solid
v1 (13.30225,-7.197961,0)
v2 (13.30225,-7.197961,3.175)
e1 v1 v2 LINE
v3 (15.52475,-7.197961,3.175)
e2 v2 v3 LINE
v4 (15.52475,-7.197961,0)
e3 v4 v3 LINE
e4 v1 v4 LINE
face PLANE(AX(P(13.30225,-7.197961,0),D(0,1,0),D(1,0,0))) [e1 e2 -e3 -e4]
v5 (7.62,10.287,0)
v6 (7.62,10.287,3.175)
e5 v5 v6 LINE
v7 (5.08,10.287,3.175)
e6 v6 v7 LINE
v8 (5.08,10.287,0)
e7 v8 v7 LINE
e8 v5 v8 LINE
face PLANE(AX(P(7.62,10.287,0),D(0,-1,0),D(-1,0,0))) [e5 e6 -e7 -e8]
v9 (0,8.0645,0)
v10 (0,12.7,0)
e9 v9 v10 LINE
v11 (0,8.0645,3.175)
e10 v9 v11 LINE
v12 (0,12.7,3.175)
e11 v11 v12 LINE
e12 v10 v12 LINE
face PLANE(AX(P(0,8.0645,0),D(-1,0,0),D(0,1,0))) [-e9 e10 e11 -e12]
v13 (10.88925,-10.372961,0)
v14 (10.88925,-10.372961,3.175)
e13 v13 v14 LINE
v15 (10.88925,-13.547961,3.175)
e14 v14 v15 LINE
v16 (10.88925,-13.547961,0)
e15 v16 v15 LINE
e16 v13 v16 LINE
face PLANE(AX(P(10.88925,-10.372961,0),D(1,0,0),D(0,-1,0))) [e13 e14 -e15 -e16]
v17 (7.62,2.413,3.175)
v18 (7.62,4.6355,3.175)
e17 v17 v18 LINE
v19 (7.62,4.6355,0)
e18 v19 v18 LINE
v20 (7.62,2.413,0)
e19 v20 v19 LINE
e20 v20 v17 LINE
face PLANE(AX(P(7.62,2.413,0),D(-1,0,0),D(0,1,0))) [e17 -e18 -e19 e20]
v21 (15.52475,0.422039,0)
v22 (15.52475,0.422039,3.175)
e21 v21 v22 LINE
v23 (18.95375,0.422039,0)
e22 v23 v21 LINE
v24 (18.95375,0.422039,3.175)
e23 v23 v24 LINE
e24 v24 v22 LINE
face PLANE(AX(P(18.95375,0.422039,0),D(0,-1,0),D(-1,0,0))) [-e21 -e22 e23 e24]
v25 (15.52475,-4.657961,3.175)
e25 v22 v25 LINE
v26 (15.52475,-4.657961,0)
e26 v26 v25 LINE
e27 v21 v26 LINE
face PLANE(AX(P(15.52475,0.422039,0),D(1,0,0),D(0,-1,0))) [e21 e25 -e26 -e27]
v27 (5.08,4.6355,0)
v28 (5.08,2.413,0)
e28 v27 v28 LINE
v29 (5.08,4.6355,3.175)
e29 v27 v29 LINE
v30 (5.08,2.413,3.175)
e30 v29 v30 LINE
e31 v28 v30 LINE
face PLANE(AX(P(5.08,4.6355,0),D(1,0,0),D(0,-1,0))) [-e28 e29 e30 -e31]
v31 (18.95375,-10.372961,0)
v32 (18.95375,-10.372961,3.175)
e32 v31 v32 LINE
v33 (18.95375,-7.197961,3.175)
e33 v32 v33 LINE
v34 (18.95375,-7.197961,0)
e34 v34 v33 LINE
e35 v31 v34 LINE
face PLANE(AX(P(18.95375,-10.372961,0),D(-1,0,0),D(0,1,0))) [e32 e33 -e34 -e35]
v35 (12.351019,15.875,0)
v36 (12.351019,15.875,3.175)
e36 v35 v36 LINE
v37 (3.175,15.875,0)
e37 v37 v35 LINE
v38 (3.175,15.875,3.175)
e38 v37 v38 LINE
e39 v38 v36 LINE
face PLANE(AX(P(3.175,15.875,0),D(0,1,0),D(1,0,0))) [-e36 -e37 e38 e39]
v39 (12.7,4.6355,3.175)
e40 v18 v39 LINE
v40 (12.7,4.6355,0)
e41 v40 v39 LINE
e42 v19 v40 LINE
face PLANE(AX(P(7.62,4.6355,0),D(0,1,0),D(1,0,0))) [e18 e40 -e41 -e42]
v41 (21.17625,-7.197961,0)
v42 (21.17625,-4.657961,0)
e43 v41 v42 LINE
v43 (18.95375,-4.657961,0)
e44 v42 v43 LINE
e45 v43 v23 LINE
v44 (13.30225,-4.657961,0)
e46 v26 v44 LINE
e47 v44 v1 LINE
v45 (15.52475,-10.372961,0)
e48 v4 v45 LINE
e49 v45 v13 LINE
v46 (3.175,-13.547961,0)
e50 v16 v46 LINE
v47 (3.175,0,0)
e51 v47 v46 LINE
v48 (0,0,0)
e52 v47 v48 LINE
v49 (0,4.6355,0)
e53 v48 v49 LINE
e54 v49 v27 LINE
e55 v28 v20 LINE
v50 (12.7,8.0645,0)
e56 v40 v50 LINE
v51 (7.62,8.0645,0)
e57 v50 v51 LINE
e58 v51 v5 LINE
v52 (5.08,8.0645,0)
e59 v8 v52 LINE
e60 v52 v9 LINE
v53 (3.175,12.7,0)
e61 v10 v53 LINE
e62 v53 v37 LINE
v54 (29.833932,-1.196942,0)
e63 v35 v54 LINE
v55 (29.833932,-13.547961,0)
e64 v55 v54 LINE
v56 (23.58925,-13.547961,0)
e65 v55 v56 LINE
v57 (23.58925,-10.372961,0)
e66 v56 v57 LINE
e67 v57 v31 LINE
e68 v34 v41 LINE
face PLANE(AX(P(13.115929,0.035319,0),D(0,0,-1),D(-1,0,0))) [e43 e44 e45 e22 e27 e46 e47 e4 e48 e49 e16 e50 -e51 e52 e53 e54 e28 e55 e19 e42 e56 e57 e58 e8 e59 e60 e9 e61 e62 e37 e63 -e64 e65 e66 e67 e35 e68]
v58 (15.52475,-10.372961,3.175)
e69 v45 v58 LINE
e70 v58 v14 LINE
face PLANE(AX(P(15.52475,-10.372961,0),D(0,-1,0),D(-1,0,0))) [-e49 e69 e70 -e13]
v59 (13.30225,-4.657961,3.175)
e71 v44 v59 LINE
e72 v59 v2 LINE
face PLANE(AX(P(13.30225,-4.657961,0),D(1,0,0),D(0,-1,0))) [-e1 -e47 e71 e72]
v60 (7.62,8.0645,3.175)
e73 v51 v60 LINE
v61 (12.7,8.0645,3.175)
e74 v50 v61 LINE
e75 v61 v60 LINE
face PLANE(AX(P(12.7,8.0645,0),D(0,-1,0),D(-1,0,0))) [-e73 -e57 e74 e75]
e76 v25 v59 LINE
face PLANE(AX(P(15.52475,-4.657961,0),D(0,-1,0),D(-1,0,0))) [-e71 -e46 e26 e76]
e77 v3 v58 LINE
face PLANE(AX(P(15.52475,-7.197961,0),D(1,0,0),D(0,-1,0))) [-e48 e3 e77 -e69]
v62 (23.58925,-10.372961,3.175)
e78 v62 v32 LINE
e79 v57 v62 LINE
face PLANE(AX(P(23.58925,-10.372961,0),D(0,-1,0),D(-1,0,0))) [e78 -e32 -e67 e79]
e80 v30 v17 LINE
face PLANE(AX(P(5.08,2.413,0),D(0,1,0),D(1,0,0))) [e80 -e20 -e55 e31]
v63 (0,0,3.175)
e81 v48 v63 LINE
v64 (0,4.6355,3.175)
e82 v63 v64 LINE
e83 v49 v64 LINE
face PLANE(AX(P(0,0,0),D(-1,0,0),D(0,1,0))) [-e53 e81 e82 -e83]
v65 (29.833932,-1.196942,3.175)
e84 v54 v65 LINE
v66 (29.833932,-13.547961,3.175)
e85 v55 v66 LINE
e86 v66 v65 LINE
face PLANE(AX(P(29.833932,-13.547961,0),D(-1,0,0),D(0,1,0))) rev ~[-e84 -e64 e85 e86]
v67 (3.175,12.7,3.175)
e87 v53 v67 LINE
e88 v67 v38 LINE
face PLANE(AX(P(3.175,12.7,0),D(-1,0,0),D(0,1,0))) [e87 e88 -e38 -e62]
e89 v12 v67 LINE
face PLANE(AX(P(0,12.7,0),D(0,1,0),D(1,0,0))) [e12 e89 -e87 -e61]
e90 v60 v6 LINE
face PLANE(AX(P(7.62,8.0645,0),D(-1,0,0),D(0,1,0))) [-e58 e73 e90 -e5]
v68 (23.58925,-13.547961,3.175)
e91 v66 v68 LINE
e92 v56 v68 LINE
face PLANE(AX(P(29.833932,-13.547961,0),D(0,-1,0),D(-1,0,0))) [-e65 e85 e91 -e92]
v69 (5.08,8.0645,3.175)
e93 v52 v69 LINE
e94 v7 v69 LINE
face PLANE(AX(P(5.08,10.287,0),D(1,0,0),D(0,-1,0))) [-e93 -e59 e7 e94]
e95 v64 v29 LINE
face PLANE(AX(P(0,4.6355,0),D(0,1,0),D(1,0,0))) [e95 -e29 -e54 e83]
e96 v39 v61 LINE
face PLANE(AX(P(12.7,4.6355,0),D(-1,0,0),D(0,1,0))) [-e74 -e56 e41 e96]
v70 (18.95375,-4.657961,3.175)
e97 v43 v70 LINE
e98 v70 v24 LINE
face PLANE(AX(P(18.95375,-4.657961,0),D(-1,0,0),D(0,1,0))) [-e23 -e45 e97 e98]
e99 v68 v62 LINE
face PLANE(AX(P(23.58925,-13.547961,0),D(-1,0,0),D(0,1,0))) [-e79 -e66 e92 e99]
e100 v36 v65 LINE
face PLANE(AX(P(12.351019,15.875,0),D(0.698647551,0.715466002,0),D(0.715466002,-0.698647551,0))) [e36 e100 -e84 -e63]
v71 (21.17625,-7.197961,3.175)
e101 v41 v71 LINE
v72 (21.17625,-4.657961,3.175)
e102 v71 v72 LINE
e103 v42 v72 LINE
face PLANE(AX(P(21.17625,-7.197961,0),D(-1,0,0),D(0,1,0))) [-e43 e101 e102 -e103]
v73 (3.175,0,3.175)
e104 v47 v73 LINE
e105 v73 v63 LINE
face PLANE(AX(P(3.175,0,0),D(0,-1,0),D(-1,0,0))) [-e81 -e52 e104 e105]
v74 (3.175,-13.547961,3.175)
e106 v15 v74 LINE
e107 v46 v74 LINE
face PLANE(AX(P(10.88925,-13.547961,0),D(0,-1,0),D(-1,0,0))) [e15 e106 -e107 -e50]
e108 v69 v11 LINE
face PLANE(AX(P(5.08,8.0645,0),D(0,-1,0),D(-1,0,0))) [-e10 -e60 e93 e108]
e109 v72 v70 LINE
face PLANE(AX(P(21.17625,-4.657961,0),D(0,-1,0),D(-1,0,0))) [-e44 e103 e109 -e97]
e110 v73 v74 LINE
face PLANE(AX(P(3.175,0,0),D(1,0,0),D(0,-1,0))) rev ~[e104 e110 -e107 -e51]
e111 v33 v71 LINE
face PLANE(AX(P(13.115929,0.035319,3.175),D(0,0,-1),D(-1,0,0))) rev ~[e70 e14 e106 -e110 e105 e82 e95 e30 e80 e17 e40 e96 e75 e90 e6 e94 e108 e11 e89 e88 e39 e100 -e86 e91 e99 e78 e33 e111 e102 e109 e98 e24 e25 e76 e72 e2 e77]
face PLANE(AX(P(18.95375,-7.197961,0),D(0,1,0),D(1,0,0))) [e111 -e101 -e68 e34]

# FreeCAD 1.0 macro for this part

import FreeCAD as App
import Part
import Sketcher

V = App.Vector
Q = App.Units.Quantity


def add_polygon(sketch, points):
    """Adds a closed chain of lines whose ends are joined by coincident constraints."""
    first, n = sketch.GeometryCount, len(points)
    for a, b in zip(points, points[1:] + points[:1]):
        sketch.addGeometry(Part.LineSegment(App.Vector(*a, 0), App.Vector(*b, 0)), False)
    for i in range(n):
        sketch.addConstraint(Sketcher.Constraint("Coincident", first + i, 2, first + (i + 1) % n, 1))

doc = App.newDocument("Part")
body = doc.addObject("PartDesign::Body", "Body")

# Sketch on XY plane
sketch1 = body.newObject("Sketcher::SketchObject", "Sketch")
sketch1.AttachmentSupport = (doc.getObject("XY_Plane"), [""])
sketch1.MapMode = "FlatFace"
add_polygon(sketch1, [(0, 4.6), (0, 0), (3.2, 0), (3.2, -13.5), (10.9, -13.5), (10.9, -10.4), (15.5, -10.4), (15.5, -7.2), (13.3, -7.2), (13.3, -4.7), (15.5, -4.7), (15.5, 0.4), (19, 0.4), (19, -4.7), (21.2, -4.7), (21.2, -7.2), (19, -7.2), (19, -10.4), (23.6, -10.4), (23.6, -13.5), (29.8, -13.5), (29.8, -1.2), (12.4, 15.9), (3.2, 15.9), (3.2, 12.7), (0, 12.7), (0, 8.1), (5.1, 8.1), (5.1, 10.3), (7.6, 10.3), (7.6, 8.1), (12.7, 8.1), (12.7, 4.6), (7.6, 4.6), (7.6, 2.4), (5.1, 2.4), (5.1, 4.6)])  # lines 0-36
sketch1.addConstraint([
    Sketcher.Constraint("Vertical", 0),
    Sketcher.Constraint("Horizontal", 1),
    Sketcher.Constraint("Vertical", 2),
    Sketcher.Constraint("Horizontal", 3),
    Sketcher.Constraint("Vertical", 4),
    Sketcher.Constraint("Horizontal", 5),
    Sketcher.Constraint("Vertical", 6),
    Sketcher.Constraint("Horizontal", 7),
    Sketcher.Constraint("Vertical", 8),
    Sketcher.Constraint("Horizontal", 9),
    Sketcher.Constraint("Vertical", 10),
    Sketcher.Constraint("Horizontal", 11),
    Sketcher.Constraint("Vertical", 12),
    Sketcher.Constraint("Horizontal", 13),
    Sketcher.Constraint("Vertical", 14),
    Sketcher.Constraint("Horizontal", 15),
    Sketcher.Constraint("Vertical", 16),
    Sketcher.Constraint("Horizontal", 17),
    Sketcher.Constraint("Vertical", 18),
    Sketcher.Constraint("Horizontal", 19),
    Sketcher.Constraint("Vertical", 20),
    Sketcher.Constraint("Horizontal", 22),
    Sketcher.Constraint("Vertical", 23),
    Sketcher.Constraint("Horizontal", 24),
    Sketcher.Constraint("Vertical", 25),
    Sketcher.Constraint("Horizontal", 26),
    Sketcher.Constraint("Vertical", 27),
    Sketcher.Constraint("Horizontal", 28),
    Sketcher.Constraint("Vertical", 29),
    Sketcher.Constraint("Horizontal", 30),
    Sketcher.Constraint("Vertical", 31),
    Sketcher.Constraint("Horizontal", 32),
    Sketcher.Constraint("Vertical", 33),
    Sketcher.Constraint("Horizontal", 34),
    Sketcher.Constraint("Vertical", 35),
    Sketcher.Constraint("Horizontal", 36),
    Sketcher.Constraint("Coincident", 0, 2, -1, 1),
    Sketcher.Constraint("PointOnObject", 24, 2, -2),
    Sketcher.Constraint("Horizontal", 9, 2, 12, 2),
    Sketcher.Constraint("Horizontal", 7, 2, 14, 2),
    Sketcher.Constraint("Horizontal", 5, 2, 16, 2),
    Sketcher.Constraint("Horizontal", 3, 2, 18, 2),
    Sketcher.Constraint("Horizontal", 26, 2, 29, 2),
    Sketcher.Constraint("Horizontal", 32, 2, 35, 2),
    Sketcher.Constraint("Vertical", 6, 2, 9, 2),
    Sketcher.Constraint("Vertical", 12, 2, 15, 2),
    Sketcher.Constraint("Vertical", 2, 2, 22, 2),
    Sketcher.Constraint("Vertical", 29, 2, 32, 2),
    Sketcher.Constraint("Vertical", 27, 2, 34, 2),
    Sketcher.Constraint("Equal", 9, 13),
    Sketcher.Constraint("Equal", 5, 17),
    Sketcher.Constraint("Equal", 26, 30),
    Sketcher.Constraint("Equal", 17, 0),
    Sketcher.Constraint("Equal", 24, 4),
    Sketcher.Constraint("Equal", 4, 6),
    Sketcher.Constraint("Equal", 34, 8),
    Sketcher.Constraint("Equal", 36, 10),
    Sketcher.Constraint("Equal", 18, 23),
    Sketcher.Constraint("Equal", 0, 25),
    Sketcher.Constraint("Equal", 15, 27),
    Sketcher.Constraint("Equal", 11, 31),
    Sketcher.Constraint("Equal", 29, 33),
    Sketcher.Constraint("DistanceX", 26, 1, 26, 2, Q("0.2 in")),
    Sketcher.Constraint("DistanceX", 28, 1, 28, 2, Q("0.1 in")),
    Sketcher.Constraint("DistanceY", -1, 1, 23, 2, Q("0.5 in")),
    Sketcher.Constraint("DistanceX", 1, 1, 1, 2, Q("0.125 in")),
    Sketcher.Constraint("DistanceX", 11, 1, 11, 2, Q("0.135 in")),
    Sketcher.Constraint("DistanceY", 27, 2, 22, 2, Q("0.22 in")),
    Sketcher.Constraint("Distance", 21, Q("24.4357 mm")),
    Sketcher.Constraint("DistanceX", 3, 1, 3, 2, Q("7.71425 mm")),
    Sketcher.Constraint("DistanceX", 19, 1, 19, 2, Q("6.244682 mm")),
    Sketcher.Constraint("DistanceX", 22, 2, 22, 1, Q("9.176019 mm")),
    Sketcher.Constraint("DistanceY", 2, 2, 2, 1, Q("13.547961 mm")),
])
pad1 = body.newObject("PartDesign::Pad", "Pad")
pad1.Profile = sketch1
pad1.Length = Q("0.125 in")

doc.recompute()
